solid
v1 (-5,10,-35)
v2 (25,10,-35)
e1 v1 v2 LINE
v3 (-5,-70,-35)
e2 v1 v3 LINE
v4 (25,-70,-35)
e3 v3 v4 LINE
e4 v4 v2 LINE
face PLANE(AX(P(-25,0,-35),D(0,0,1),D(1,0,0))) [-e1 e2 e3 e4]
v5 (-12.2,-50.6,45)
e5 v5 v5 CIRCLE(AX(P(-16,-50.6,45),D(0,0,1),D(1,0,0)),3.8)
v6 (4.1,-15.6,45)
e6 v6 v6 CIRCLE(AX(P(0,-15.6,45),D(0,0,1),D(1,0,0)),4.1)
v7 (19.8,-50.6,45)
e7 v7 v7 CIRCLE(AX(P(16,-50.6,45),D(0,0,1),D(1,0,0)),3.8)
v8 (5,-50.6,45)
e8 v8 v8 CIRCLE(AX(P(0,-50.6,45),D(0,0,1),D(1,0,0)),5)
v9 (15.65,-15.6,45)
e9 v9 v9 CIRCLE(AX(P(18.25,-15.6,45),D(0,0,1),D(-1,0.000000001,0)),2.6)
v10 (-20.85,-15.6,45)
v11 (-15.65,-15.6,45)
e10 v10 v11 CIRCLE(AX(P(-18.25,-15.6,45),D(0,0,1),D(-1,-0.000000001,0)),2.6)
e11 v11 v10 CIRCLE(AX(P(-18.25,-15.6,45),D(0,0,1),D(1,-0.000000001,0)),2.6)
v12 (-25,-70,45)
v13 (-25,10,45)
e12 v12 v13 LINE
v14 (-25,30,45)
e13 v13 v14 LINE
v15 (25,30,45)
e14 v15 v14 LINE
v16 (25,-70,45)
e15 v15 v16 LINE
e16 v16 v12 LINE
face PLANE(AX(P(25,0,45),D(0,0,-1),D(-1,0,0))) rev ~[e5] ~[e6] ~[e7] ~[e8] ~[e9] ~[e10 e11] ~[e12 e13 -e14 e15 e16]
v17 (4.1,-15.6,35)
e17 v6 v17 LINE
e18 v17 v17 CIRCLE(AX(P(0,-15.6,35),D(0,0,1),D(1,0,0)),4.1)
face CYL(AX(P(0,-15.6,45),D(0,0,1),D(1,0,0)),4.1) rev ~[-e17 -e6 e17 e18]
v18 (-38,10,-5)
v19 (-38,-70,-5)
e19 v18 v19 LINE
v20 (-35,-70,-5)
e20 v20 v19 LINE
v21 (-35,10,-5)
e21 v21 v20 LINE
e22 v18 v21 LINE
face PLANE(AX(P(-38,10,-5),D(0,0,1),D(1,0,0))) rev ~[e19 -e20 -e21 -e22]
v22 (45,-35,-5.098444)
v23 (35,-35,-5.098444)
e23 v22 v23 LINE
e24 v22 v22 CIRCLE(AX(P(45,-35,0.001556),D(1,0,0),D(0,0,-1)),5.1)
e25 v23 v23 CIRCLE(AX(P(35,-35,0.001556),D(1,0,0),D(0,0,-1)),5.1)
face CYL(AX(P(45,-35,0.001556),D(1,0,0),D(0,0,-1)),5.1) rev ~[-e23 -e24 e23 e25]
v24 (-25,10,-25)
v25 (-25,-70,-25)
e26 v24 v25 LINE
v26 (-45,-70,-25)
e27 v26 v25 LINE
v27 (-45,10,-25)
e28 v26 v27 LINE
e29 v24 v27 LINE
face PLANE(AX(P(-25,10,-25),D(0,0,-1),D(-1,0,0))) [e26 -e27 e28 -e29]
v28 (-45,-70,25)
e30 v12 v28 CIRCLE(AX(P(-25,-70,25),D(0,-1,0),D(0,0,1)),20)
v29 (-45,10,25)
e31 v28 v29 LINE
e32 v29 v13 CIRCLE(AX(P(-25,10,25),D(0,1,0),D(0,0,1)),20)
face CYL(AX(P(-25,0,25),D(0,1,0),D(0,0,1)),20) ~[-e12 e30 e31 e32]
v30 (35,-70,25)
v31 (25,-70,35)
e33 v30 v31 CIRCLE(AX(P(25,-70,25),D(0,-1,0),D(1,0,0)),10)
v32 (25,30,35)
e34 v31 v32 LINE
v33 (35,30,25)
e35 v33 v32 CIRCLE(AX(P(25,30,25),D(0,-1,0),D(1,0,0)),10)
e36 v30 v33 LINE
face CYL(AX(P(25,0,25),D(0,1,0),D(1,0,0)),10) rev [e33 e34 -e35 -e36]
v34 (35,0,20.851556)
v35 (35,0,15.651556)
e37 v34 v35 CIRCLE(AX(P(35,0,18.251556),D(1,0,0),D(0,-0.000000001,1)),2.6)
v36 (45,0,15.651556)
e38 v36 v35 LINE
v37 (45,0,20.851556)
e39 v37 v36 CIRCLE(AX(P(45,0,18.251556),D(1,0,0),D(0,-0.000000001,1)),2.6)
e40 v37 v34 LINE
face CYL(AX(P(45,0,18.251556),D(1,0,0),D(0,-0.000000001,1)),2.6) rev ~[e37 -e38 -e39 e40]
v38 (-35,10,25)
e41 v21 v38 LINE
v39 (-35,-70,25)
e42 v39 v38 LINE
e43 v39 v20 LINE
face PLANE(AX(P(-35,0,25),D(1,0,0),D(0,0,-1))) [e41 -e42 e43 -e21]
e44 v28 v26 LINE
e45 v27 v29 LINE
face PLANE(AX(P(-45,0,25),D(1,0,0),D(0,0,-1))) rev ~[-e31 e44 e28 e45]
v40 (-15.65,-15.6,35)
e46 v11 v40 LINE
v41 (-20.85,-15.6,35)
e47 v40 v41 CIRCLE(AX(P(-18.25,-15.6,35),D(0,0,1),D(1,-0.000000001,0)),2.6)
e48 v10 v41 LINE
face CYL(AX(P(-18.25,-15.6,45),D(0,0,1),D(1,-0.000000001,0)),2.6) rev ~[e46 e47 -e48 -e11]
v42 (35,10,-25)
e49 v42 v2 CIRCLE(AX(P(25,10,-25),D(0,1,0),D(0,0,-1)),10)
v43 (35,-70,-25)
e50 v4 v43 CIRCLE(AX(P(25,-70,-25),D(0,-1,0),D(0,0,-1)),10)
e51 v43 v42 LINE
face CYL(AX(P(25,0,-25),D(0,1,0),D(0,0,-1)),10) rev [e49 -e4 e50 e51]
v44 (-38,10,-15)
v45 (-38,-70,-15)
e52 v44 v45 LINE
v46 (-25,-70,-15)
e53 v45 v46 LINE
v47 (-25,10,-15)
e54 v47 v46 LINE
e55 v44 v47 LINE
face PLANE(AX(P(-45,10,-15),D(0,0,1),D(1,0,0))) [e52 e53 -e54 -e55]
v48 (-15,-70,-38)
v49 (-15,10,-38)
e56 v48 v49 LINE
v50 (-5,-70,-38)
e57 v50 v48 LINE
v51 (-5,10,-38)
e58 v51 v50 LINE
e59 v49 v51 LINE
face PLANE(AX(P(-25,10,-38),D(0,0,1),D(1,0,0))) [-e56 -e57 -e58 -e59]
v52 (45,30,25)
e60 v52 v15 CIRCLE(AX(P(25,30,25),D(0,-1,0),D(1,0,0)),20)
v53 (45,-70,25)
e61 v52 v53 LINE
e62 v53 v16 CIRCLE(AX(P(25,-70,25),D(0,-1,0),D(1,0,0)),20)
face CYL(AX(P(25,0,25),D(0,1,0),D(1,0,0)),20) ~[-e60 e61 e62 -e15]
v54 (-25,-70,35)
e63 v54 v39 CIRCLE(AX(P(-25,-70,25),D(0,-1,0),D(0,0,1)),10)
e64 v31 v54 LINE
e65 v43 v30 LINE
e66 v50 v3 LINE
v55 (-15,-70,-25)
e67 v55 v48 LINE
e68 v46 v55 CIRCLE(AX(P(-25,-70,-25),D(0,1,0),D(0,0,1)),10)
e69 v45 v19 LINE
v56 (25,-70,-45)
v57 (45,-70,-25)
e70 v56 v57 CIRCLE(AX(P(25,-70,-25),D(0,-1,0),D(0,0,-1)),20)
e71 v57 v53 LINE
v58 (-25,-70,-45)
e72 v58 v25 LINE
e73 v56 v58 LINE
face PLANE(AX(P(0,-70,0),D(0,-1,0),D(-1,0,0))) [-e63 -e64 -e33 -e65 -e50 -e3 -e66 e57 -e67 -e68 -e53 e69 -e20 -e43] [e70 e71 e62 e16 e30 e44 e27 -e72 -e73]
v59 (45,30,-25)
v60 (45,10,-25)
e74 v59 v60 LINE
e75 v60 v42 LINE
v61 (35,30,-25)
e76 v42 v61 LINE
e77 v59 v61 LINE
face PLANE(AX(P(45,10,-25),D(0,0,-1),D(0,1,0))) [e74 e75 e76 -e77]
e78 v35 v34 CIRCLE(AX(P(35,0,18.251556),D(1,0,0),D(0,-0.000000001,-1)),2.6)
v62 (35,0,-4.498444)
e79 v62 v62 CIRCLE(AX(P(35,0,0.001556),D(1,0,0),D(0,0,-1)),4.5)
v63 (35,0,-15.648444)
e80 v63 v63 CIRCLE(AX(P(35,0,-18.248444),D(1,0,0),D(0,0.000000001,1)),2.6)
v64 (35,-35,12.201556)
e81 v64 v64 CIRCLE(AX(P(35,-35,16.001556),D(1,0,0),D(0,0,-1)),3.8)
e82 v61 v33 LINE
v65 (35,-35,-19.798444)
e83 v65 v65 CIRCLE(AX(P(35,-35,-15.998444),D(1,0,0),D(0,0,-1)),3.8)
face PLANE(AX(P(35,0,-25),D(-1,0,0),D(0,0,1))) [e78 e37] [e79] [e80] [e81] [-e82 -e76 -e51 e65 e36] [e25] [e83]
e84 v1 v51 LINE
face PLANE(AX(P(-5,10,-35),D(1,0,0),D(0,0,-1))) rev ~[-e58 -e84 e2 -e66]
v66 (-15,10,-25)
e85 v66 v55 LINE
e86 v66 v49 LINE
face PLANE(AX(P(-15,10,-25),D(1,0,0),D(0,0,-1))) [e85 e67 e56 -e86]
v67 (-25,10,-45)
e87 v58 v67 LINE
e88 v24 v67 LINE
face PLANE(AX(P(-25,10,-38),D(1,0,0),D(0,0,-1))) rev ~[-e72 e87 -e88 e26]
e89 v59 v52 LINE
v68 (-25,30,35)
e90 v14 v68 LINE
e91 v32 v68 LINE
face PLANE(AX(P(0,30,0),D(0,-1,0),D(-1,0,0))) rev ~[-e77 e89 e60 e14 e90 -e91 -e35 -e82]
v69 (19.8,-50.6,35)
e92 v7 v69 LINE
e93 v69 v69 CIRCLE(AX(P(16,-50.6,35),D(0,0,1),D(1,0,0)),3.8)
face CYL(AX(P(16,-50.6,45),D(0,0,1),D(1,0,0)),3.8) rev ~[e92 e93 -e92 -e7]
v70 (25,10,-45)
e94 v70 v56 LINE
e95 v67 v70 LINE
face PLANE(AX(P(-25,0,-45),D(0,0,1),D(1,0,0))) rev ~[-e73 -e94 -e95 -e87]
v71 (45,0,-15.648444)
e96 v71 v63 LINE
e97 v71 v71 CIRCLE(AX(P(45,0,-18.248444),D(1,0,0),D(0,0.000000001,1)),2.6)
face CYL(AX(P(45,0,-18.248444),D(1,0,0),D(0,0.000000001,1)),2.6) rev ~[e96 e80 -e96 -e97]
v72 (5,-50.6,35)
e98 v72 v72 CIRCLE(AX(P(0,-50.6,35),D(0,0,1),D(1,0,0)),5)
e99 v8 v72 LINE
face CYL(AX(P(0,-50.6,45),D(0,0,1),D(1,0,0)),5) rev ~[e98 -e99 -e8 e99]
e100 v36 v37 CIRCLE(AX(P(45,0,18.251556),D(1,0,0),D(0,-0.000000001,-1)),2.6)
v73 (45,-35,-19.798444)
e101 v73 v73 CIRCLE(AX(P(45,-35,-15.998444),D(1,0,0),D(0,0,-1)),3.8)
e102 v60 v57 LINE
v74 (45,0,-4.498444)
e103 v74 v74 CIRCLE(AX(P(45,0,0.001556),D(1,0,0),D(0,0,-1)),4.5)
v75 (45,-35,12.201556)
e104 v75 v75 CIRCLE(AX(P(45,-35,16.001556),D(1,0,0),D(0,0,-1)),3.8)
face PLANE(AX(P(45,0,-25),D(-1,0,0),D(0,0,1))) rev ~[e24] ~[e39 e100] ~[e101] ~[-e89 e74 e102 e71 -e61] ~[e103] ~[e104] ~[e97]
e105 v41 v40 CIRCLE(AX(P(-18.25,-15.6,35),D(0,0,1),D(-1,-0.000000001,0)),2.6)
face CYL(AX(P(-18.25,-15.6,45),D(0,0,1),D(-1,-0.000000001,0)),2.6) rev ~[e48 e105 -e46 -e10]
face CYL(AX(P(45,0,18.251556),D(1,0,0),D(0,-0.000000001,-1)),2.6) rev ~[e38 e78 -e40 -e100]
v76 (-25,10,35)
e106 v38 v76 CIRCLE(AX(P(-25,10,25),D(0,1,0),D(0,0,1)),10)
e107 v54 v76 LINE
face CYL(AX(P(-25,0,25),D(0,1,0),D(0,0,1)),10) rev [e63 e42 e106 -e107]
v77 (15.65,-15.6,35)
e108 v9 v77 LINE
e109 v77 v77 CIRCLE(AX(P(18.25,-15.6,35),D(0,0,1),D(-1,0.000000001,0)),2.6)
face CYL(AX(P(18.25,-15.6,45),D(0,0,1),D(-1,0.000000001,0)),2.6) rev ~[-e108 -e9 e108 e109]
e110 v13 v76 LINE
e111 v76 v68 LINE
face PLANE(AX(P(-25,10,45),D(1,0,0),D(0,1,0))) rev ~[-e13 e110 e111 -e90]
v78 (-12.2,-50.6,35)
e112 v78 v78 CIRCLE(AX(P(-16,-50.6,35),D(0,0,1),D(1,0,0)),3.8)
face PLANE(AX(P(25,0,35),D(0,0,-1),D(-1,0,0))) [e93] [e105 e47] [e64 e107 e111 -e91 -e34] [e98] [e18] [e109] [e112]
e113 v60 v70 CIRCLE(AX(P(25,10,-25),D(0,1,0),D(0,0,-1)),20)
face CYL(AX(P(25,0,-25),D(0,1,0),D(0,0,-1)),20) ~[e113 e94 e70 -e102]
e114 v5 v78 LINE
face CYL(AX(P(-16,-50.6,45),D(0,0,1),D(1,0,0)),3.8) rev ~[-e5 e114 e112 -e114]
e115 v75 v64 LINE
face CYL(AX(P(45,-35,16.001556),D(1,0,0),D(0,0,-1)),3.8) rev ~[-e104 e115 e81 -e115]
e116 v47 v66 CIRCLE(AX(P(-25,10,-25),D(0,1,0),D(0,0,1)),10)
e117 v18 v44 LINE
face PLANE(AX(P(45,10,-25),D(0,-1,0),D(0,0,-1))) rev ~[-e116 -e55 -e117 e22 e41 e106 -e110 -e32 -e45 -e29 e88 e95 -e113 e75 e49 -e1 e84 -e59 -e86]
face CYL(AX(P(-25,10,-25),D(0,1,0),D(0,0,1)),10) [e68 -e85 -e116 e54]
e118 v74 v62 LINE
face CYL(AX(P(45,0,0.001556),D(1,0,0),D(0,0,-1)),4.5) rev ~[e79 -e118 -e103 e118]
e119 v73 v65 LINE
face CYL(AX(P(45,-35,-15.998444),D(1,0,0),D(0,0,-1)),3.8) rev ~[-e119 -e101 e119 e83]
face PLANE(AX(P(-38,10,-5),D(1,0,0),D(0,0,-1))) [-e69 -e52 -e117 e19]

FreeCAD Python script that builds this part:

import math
import FreeCAD as App
import Part
import Sketcher
from FreeCAD import Vector
Q = App.Units.Quantity

doc = App.newDocument("Part")
body = doc.addObject("PartDesign::Body", "Body")

sketch1 = body.newObject("Sketcher::SketchObject", "Sketch")
sketch1.AttachmentSupport = (doc.getObject("XZ_Plane"), [""])
sketch1.MapMode = "FlatFace"
sketch1.addGeometry(Part.LineSegment(Vector(25, -45, 0), Vector(-25, -45, 0)), False)
sketch1.addGeometry(Part.ArcOfCircle(Part.Circle(Vector(-25, -25, 0), Vector(0, 0, 1), 20), math.radians(180), math.radians(270)), False)
sketch1.addGeometry(Part.LineSegment(Vector(-45, -25, 0), Vector(-45, 25, 0)), False)
sketch1.addGeometry(Part.ArcOfCircle(Part.Circle(Vector(-25, 25, 0), Vector(0, 0, 1), 20), math.radians(90), math.radians(180)), False)
sketch1.addGeometry(Part.LineSegment(Vector(-25, 45, 0), Vector(25, 45, 0)), False)
sketch1.addGeometry(Part.ArcOfCircle(Part.Circle(Vector(25, 25, 0), Vector(0, 0, 1), 20), math.radians(0), math.radians(90)), False)
sketch1.addGeometry(Part.LineSegment(Vector(45, 25, 0), Vector(45, -25, 0)), False)
sketch1.addGeometry(Part.ArcOfCircle(Part.Circle(Vector(25, -25, 0), Vector(0, 0, 1), 20), math.radians(-90), math.radians(0)), False)
sketch1.addGeometry(Part.LineSegment(Vector(-25, -35, 0), Vector(25, -35, 0)), False)
sketch1.addGeometry(Part.ArcOfCircle(Part.Circle(Vector(25, -25, 0), Vector(0, 0, 1), 10), math.radians(-90), math.radians(0)), False)
sketch1.addGeometry(Part.LineSegment(Vector(35, -25, 0), Vector(35, 25, 0)), False)
sketch1.addGeometry(Part.ArcOfCircle(Part.Circle(Vector(25, 25, 0), Vector(0, 0, 1), 10), math.radians(0), math.radians(90)), False)
sketch1.addGeometry(Part.LineSegment(Vector(25, 35, 0), Vector(-25, 35, 0)), False)
sketch1.addGeometry(Part.ArcOfCircle(Part.Circle(Vector(-25, 25, 0), Vector(0, 0, 1), 10), math.radians(90), math.radians(180)), False)
sketch1.addGeometry(Part.LineSegment(Vector(-35, 25, 0), Vector(-35, -25, 0)), False)
sketch1.addGeometry(Part.ArcOfCircle(Part.Circle(Vector(-25, -25, 0), Vector(0, 0, 1), 10), math.radians(180), math.radians(270)), False)
sketch1.addConstraint(Sketcher.Constraint("Tangent", 0, 2, 1, 2))
sketch1.addConstraint(Sketcher.Constraint("Tangent", 1, 1, 2, 1))
sketch1.addConstraint(Sketcher.Constraint("Tangent", 2, 2, 3, 2))
sketch1.addConstraint(Sketcher.Constraint("Tangent", 3, 1, 4, 1))
sketch1.addConstraint(Sketcher.Constraint("Tangent", 4, 2, 5, 2))
sketch1.addConstraint(Sketcher.Constraint("Tangent", 5, 1, 6, 1))
sketch1.addConstraint(Sketcher.Constraint("Tangent", 6, 2, 7, 2))
sketch1.addConstraint(Sketcher.Constraint("Tangent", 7, 1, 0, 1))
sketch1.addConstraint(Sketcher.Constraint("Tangent", 8, 2, 9, 1))
sketch1.addConstraint(Sketcher.Constraint("Tangent", 9, 2, 10, 1))
sketch1.addConstraint(Sketcher.Constraint("Tangent", 10, 2, 11, 1))
sketch1.addConstraint(Sketcher.Constraint("Tangent", 11, 2, 12, 1))
sketch1.addConstraint(Sketcher.Constraint("Tangent", 12, 2, 13, 1))
sketch1.addConstraint(Sketcher.Constraint("Tangent", 13, 2, 14, 1))
sketch1.addConstraint(Sketcher.Constraint("Tangent", 14, 2, 15, 1))
sketch1.addConstraint(Sketcher.Constraint("Tangent", 15, 2, 8, 1))
sketch1.addConstraint(Sketcher.Constraint("Horizontal", 0))
sketch1.addConstraint(Sketcher.Constraint("Vertical", 2))
sketch1.addConstraint(Sketcher.Constraint("Horizontal", 4))
sketch1.addConstraint(Sketcher.Constraint("Vertical", 6))
sketch1.addConstraint(Sketcher.Constraint("Horizontal", 8))
sketch1.addConstraint(Sketcher.Constraint("Vertical", 10))
sketch1.addConstraint(Sketcher.Constraint("Horizontal", 12))
sketch1.addConstraint(Sketcher.Constraint("Vertical", 14))
sketch1.addConstraint(Sketcher.Constraint("Coincident", 9, 3, 7, 3))
sketch1.addConstraint(Sketcher.Constraint("Coincident", 11, 3, 5, 3))
sketch1.addConstraint(Sketcher.Constraint("Coincident", 13, 3, 3, 3))
sketch1.addConstraint(Sketcher.Constraint("Equal", 1, 3))
sketch1.addConstraint(Sketcher.Constraint("Equal", 3, 5))
sketch1.addConstraint(Sketcher.Constraint("Equal", 5, 7))
sketch1.addConstraint(Sketcher.Constraint("Equal", 13, 15))
sketch1.addConstraint(Sketcher.Constraint("Symmetric", 1, 3, 5, 3, -1, 1))
sketch1.addConstraint(Sketcher.Constraint("Equal", 12, 2))
sketch1.addConstraint(Sketcher.Constraint("Radius", 1, Q("20 mm")))
sketch1.addConstraint(Sketcher.Constraint("Radius", 9, Q("10 mm")))
sketch1.addConstraint(Sketcher.Constraint("DistanceX", 0, 2, 0, 1, Q("50 mm")))
pad1 = body.newObject("PartDesign::Pad", "Pad")
pad1.Profile = sketch1
pad1.Type = "TwoLengths"
pad1.Length = 30
pad1.Length2 = 70
pad1.Reversed = True

sketch2 = body.newObject("Sketcher::SketchObject", "Sketch001")
sketch2.AttachmentSupport = (doc.getObject("YZ_Plane"), [""])
sketch2.MapMode = "FlatFace"
sketch2.AttachmentOffset = App.Placement(Vector(0, 0, 45), App.Rotation())
sketch2.addGeometry(Part.Circle(Vector(0, 0, 0), Vector(0, 0, 1), 4.5), False)
sketch2.addConstraint(Sketcher.Constraint("PointOnObject", 0, 3, -2))
sketch2.addConstraint(Sketcher.Constraint("Diameter", 0, Q("9 mm")))
sketch2.addConstraint(Sketcher.Constraint("DistanceY", -1, 1, 0, 3, Q("0.001556 mm")))
pocket1 = body.newObject("PartDesign::Pocket", "Pocket")
pocket1.Profile = sketch2
pocket1.Type = "UpToFirst"

sketch3 = body.newObject("Sketcher::SketchObject", "Sketch002")
sketch3.AttachmentSupport = (doc.getObject("YZ_Plane"), [""])
sketch3.MapMode = "FlatFace"
sketch3.AttachmentOffset = App.Placement(Vector(0, 0, 45), App.Rotation())
sketch3.addGeometry(Part.Circle(Vector(-35, 0, 0), Vector(0, 0, 1), 5), False)
sketch3.addConstraint(Sketcher.Constraint("Diameter", 0, Q("10.2 mm")))
sketch3.addConstraint(Sketcher.Constraint("DistanceX", 0, 3, -1, 1, Q("35 mm")))
sketch3.addConstraint(Sketcher.Constraint("DistanceY", -1, 1, 0, 3, Q("0.001556 mm")))
pocket2 = body.newObject("PartDesign::Pocket", "Pocket001")
pocket2.Profile = sketch3
pocket2.Type = "UpToFirst"

sketch4 = body.newObject("Sketcher::SketchObject", "Sketch003")
sketch4.AttachmentSupport = (doc.getObject("YZ_Plane"), [""])
sketch4.MapMode = "FlatFace"
sketch4.AttachmentOffset = App.Placement(Vector(0, 0, 45), App.Rotation())
sketch4.addGeometry(Part.Circle(Vector(-35, -16, 0), Vector(0, 0, 1), 3.8), False)
sketch4.addConstraint(Sketcher.Constraint("Diameter", 0, Q("7.6 mm")))
sketch4.addConstraint(Sketcher.Constraint("DistanceX", 0, 3, -1, 1, Q("35 mm")))
sketch4.addConstraint(Sketcher.Constraint("DistanceY", 0, 3, -1, 1, Q("15.998444 mm")))
pocket3 = body.newObject("PartDesign::Pocket", "Pocket002")
pocket3.Profile = sketch4
pocket3.Type = "UpToFirst"

sketch5 = body.newObject("Sketcher::SketchObject", "Sketch004")
sketch5.AttachmentSupport = (doc.getObject("YZ_Plane"), [""])
sketch5.MapMode = "FlatFace"
sketch5.AttachmentOffset = App.Placement(Vector(0, 0, 45), App.Rotation())
sketch5.addGeometry(Part.Circle(Vector(-35, 16, 0), Vector(0, 0, 1), 3.8), False)
sketch5.addConstraint(Sketcher.Constraint("Diameter", 0, Q("7.6 mm")))
sketch5.addConstraint(Sketcher.Constraint("DistanceX", 0, 3, -1, 1, Q("35 mm")))
sketch5.addConstraint(Sketcher.Constraint("DistanceY", -1, 1, 0, 3, Q("16.001556 mm")))
pocket4 = body.newObject("PartDesign::Pocket", "Pocket003")
pocket4.Profile = sketch5
pocket4.Type = "UpToFirst"

sketch6 = body.newObject("Sketcher::SketchObject", "Sketch005")
sketch6.AttachmentSupport = (doc.getObject("YZ_Plane"), [""])
sketch6.MapMode = "FlatFace"
sketch6.AttachmentOffset = App.Placement(Vector(0, 0, 45), App.Rotation())
sketch6.addGeometry(Part.Circle(Vector(0, -18.2, 0), Vector(0, 0, 1), 2.6), False)
sketch6.addConstraint(Sketcher.Constraint("PointOnObject", 0, 3, -2))
sketch6.addConstraint(Sketcher.Constraint("Diameter", 0, Q("5.2 mm")))
sketch6.addConstraint(Sketcher.Constraint("DistanceY", 0, 3, -1, 1, Q("18.248444 mm")))
pocket5 = body.newObject("PartDesign::Pocket", "Pocket004")
pocket5.Profile = sketch6
pocket5.Type = "UpToFirst"

sketch7 = body.newObject("Sketcher::SketchObject", "Sketch006")
sketch7.AttachmentSupport = (doc.getObject("YZ_Plane"), [""])
sketch7.MapMode = "FlatFace"
sketch7.AttachmentOffset = App.Placement(Vector(0, 0, 45), App.Rotation())
sketch7.addGeometry(Part.ArcOfCircle(Part.Circle(Vector(0, 18.3, 0), Vector(0, 0, 1), 2.6), math.radians(-90), math.radians(90)), False)
sketch7.addGeometry(Part.ArcOfCircle(Part.Circle(Vector(0, 18.3, 0), Vector(0, 0, 1), 2.6), math.radians(90), math.radians(270)), False)
sketch7.addConstraint(Sketcher.Constraint("Tangent", 0, 1, 1, 2))
sketch7.addConstraint(Sketcher.Constraint("Coincident", 1, 1, 0, 2))
sketch7.addConstraint(Sketcher.Constraint("PointOnObject", 0, 3, -2))
sketch7.addConstraint(Sketcher.Constraint("PointOnObject", 0, 1, -2))
sketch7.addConstraint(Sketcher.Constraint("PointOnObject", 1, 1, -2))
sketch7.addConstraint(Sketcher.Constraint("Radius", 0, Q("2.6 mm")))
sketch7.addConstraint(Sketcher.Constraint("DistanceY", -1, 1, 0, 3, Q("18.251556 mm")))
pocket6 = body.newObject("PartDesign::Pocket", "Pocket005")
pocket6.Profile = sketch7
pocket6.Type = "UpToFirst"

sketch8 = body.newObject("Sketcher::SketchObject", "Sketch007")
sketch8.AttachmentSupport = (doc.getObject("YZ_Plane"), [""])
sketch8.MapMode = "FlatFace"
sketch8.AttachmentOffset = App.Placement(Vector(0, 0, 45), App.Rotation())
sketch8.addGeometry(Part.LineSegment(Vector(30, -25, 0), Vector(10, -25, 0)), False)
sketch8.addGeometry(Part.LineSegment(Vector(10, -25, 0), Vector(10, -45, 0)), False)
sketch8.addGeometry(Part.LineSegment(Vector(10, -45, 0), Vector(30, -45, 0)), False)
sketch8.addGeometry(Part.LineSegment(Vector(30, -45, 0), Vector(30, -25, 0)), False)
sketch8.addConstraint(Sketcher.Constraint("Coincident", 0, 2, 1, 1))
sketch8.addConstraint(Sketcher.Constraint("Coincident", 1, 2, 2, 1))
sketch8.addConstraint(Sketcher.Constraint("Coincident", 2, 2, 3, 1))
sketch8.addConstraint(Sketcher.Constraint("Coincident", 3, 2, 0, 1))
sketch8.addConstraint(Sketcher.Constraint("Horizontal", 0))
sketch8.addConstraint(Sketcher.Constraint("Vertical", 1))
sketch8.addConstraint(Sketcher.Constraint("Horizontal", 2))
sketch8.addConstraint(Sketcher.Constraint("Vertical", 3))
sketch8.addConstraint(Sketcher.Constraint("Equal", 2, 1))
sketch8.addConstraint(Sketcher.Constraint("DistanceX", 0, 2, 0, 1, Q("20 mm")))
sketch8.addConstraint(Sketcher.Constraint("DistanceX", -1, 1, 0, 2, Q("10 mm")))
sketch8.addConstraint(Sketcher.Constraint("DistanceY", 0, 2, -1, 1, Q("25 mm")))
pocket7 = body.newObject("PartDesign::Pocket", "Pocket006")
pocket7.Profile = sketch8
pocket7.Type = "ThroughAll"

sketch9 = body.newObject("Sketcher::SketchObject", "Sketch008")
sketch9.AttachmentSupport = (doc.getObject("XY_Plane"), [""])
sketch9.MapMode = "FlatFace"
sketch9.AttachmentOffset = App.Placement(Vector(0, 0, 45), App.Rotation())
sketch9.addGeometry(Part.LineSegment(Vector(-45, 30, 0), Vector(-45, 10, 0)), False)
sketch9.addGeometry(Part.LineSegment(Vector(-45, 10, 0), Vector(-25, 10, 0)), False)
sketch9.addGeometry(Part.LineSegment(Vector(-25, 10, 0), Vector(-25, 30, 0)), False)
sketch9.addGeometry(Part.LineSegment(Vector(-25, 30, 0), Vector(-45, 30, 0)), False)
sketch9.addConstraint(Sketcher.Constraint("Coincident", 0, 2, 1, 1))
sketch9.addConstraint(Sketcher.Constraint("Coincident", 1, 2, 2, 1))
sketch9.addConstraint(Sketcher.Constraint("Coincident", 2, 2, 3, 1))
sketch9.addConstraint(Sketcher.Constraint("Coincident", 3, 2, 0, 1))
sketch9.addConstraint(Sketcher.Constraint("Vertical", 0))
sketch9.addConstraint(Sketcher.Constraint("Horizontal", 1))
sketch9.addConstraint(Sketcher.Constraint("Vertical", 2))
sketch9.addConstraint(Sketcher.Constraint("Horizontal", 3))
sketch9.addConstraint(Sketcher.Constraint("Equal", 3, 0))
sketch9.addConstraint(Sketcher.Constraint("DistanceX", 1, 1, 1, 2, Q("20 mm")))
sketch9.addConstraint(Sketcher.Constraint("DistanceX", 0, 2, -1, 1, Q("45 mm")))
sketch9.addConstraint(Sketcher.Constraint("DistanceY", -1, 1, 0, 2, Q("10 mm")))
pocket8 = body.newObject("PartDesign::Pocket", "Pocket007")
pocket8.Profile = sketch9
pocket8.Length = 70

sketch10 = body.newObject("Sketcher::SketchObject", "Sketch009")
sketch10.AttachmentSupport = (doc.getObject("XY_Plane"), [""])
sketch10.MapMode = "FlatFace"
sketch10.AttachmentOffset = App.Placement(Vector(0, 0, 45), App.Rotation())
sketch10.addGeometry(Part.Circle(Vector(640, -50.6, 0), Vector(0, 0, 1), 5), False)
sketch10.addGeometry(Part.Circle(Vector(640, -15.6, 0), Vector(0, 0, 1), 5), False)
sketch10.addGeometry(Part.Circle(Vector(0, -15.6, 0), Vector(0, 0, 1), 4.1), False)
sketch10.addGeometry(Part.Circle(Vector(0, -50.6, 0), Vector(0, 0, 1), 5), False)
sketch10.addGeometry(Part.Circle(Vector(-16, -50.6, 0), Vector(0, 0, 1), 3.8), False)
sketch10.addGeometry(Part.Circle(Vector(16, -50.6, 0), Vector(0, 0, 1), 3.8), False)
sketch10.addGeometry(Part.ArcOfCircle(Part.Circle(Vector(-18.2, -15.6, 0), Vector(0, 0, 1), 2.6), math.radians(0), math.radians(180)), False)
sketch10.addGeometry(Part.ArcOfCircle(Part.Circle(Vector(-18.2, -15.6, 0), Vector(0, 0, 1), 2.6), math.radians(-180), math.radians(0)), False)
sketch10.addGeometry(Part.Circle(Vector(18.2, -15.6, 0), Vector(0, 0, 1), 2.6), False)
sketch10.addConstraint(Sketcher.Constraint("Tangent", 6, 1, 7, 2))
sketch10.addConstraint(Sketcher.Constraint("Coincident", 7, 1, 6, 2))
sketch10.addConstraint(Sketcher.Constraint("Equal", 0, 1))
sketch10.addConstraint(Sketcher.Constraint("Equal", 1, 3))
sketch10.addConstraint(Sketcher.Constraint("Equal", 4, 5))
sketch10.addConstraint(Sketcher.Constraint("Equal", 7, 8))
sketch10.addConstraint(Sketcher.Constraint("Symmetric", 4, 3, 5, 3, -2))
sketch10.addConstraint(Sketcher.Constraint("Symmetric", 6, 3, 8, 3, -2))
sketch10.addConstraint(Sketcher.Constraint("PointOnObject", 2, 3, -2))
sketch10.addConstraint(Sketcher.Constraint("PointOnObject", 3, 3, -2))
sketch10.addConstraint(Sketcher.Constraint("Horizontal", 1, 3, 2, 3))
sketch10.addConstraint(Sketcher.Constraint("Horizontal", 0, 3, 3, 3))
sketch10.addConstraint(Sketcher.Constraint("Horizontal", 3, 3, 4, 3))
sketch10.addConstraint(Sketcher.Constraint("Horizontal", 2, 3, 6, 3))
sketch10.addConstraint(Sketcher.Constraint("Horizontal", 8, 3, 6, 1))
sketch10.addConstraint(Sketcher.Constraint("Horizontal", 6, 1, 7, 1))
sketch10.addConstraint(Sketcher.Constraint("Vertical", 0, 3, 1, 3))
sketch10.addConstraint(Sketcher.Constraint("Diameter", 0, Q("10 mm")))
sketch10.addConstraint(Sketcher.Constraint("Diameter", 2, Q("8.2 mm")))
sketch10.addConstraint(Sketcher.Constraint("Diameter", 4, Q("7.6 mm")))
sketch10.addConstraint(Sketcher.Constraint("Diameter", 8, Q("5.2 mm")))
sketch10.addConstraint(Sketcher.Constraint("DistanceX", -1, 1, 0, 3, Q("640 mm")))
sketch10.addConstraint(Sketcher.Constraint("DistanceX", 4, 3, -1, 1, Q("16 mm")))
sketch10.addConstraint(Sketcher.Constraint("DistanceY", 0, 3, 1, 3, Q("35 mm")))
sketch10.addConstraint(Sketcher.Constraint("DistanceY", 0, 3, -1, 1, Q("50.6 mm")))
sketch10.addConstraint(Sketcher.Constraint("DistanceX", 6, 3, 8, 3, Q("36.5 mm")))
pocket9 = body.newObject("PartDesign::Pocket", "Pocket008")
pocket9.Profile = sketch10
pocket9.Length = 10

sketch11 = body.newObject("Sketcher::SketchObject", "Sketch010")
sketch11.AttachmentSupport = (doc.getObject("XZ_Plane"), [""])
sketch11.MapMode = "FlatFace"
sketch11.AttachmentOffset = App.Placement(Vector(0, 0, -10), App.Rotation())
sketch11.addGeometry(Part.LineSegment(Vector(-45, -45, 0), Vector(-45, -25, 0)), False)
sketch11.addGeometry(Part.LineSegment(Vector(-45, -25, 0), Vector(-38, -25, 0)), False)
sketch11.addGeometry(Part.LineSegment(Vector(-38, -25, 0), Vector(-38, -5, 0)), False)
sketch11.addGeometry(Part.LineSegment(Vector(-38, -5, 0), Vector(-35, -5, 0)), False)
sketch11.addGeometry(Part.LineSegment(Vector(-35, -5, 0), Vector(-35, -25, 0)), False)
sketch11.addGeometry(Part.LineSegment(Vector(-35, -25, 0), Vector(-25, -25, 0)), False)
sketch11.addGeometry(Part.LineSegment(Vector(-25, -25, 0), Vector(-25, -35, 0)), False)
sketch11.addGeometry(Part.LineSegment(Vector(-25, -35, 0), Vector(-5, -35, 0)), False)
sketch11.addGeometry(Part.LineSegment(Vector(-5, -35, 0), Vector(-5, -38, 0)), False)
sketch11.addGeometry(Part.LineSegment(Vector(-5, -38, 0), Vector(-25, -38, 0)), False)
sketch11.addGeometry(Part.LineSegment(Vector(-25, -38, 0), Vector(-25, -45, 0)), False)
sketch11.addGeometry(Part.LineSegment(Vector(-25, -45, 0), Vector(-45, -45, 0)), False)
sketch11.addConstraint(Sketcher.Constraint("Coincident", 0, 2, 1, 1))
sketch11.addConstraint(Sketcher.Constraint("Coincident", 1, 2, 2, 1))
sketch11.addConstraint(Sketcher.Constraint("Coincident", 2, 2, 3, 1))
sketch11.addConstraint(Sketcher.Constraint("Coincident", 3, 2, 4, 1))
sketch11.addConstraint(Sketcher.Constraint("Coincident", 4, 2, 5, 1))
sketch11.addConstraint(Sketcher.Constraint("Coincident", 5, 2, 6, 1))
sketch11.addConstraint(Sketcher.Constraint("Coincident", 6, 2, 7, 1))
sketch11.addConstraint(Sketcher.Constraint("Coincident", 7, 2, 8, 1))
sketch11.addConstraint(Sketcher.Constraint("Coincident", 8, 2, 9, 1))
sketch11.addConstraint(Sketcher.Constraint("Coincident", 9, 2, 10, 1))
sketch11.addConstraint(Sketcher.Constraint("Coincident", 10, 2, 11, 1))
sketch11.addConstraint(Sketcher.Constraint("Coincident", 11, 2, 0, 1))
sketch11.addConstraint(Sketcher.Constraint("Vertical", 0))
sketch11.addConstraint(Sketcher.Constraint("Horizontal", 1))
sketch11.addConstraint(Sketcher.Constraint("Vertical", 2))
sketch11.addConstraint(Sketcher.Constraint("Horizontal", 3))
sketch11.addConstraint(Sketcher.Constraint("Vertical", 4))
sketch11.addConstraint(Sketcher.Constraint("Horizontal", 5))
sketch11.addConstraint(Sketcher.Constraint("Vertical", 6))
sketch11.addConstraint(Sketcher.Constraint("Horizontal", 7))
sketch11.addConstraint(Sketcher.Constraint("Vertical", 8))
sketch11.addConstraint(Sketcher.Constraint("Horizontal", 9))
sketch11.addConstraint(Sketcher.Constraint("Vertical", 10))
sketch11.addConstraint(Sketcher.Constraint("Horizontal", 11))
sketch11.addConstraint(Sketcher.Constraint("Horizontal", 1, 2, 4, 2))
sketch11.addConstraint(Sketcher.Constraint("Vertical", 6, 2, 9, 2))
sketch11.addConstraint(Sketcher.Constraint("Equal", 9, 11))
sketch11.addConstraint(Sketcher.Constraint("Equal", 11, 0))
sketch11.addConstraint(Sketcher.Constraint("Equal", 0, 2))
sketch11.addConstraint(Sketcher.Constraint("Equal", 5, 6))
sketch11.addConstraint(Sketcher.Constraint("Equal", 3, 8))
sketch11.addConstraint(Sketcher.Constraint("DistanceX", 1, 1, 1, 2, Q("7 mm")))
sketch11.addConstraint(Sketcher.Constraint("DistanceX", 3, 1, 3, 2, Q("3 mm")))
sketch11.addConstraint(Sketcher.Constraint("DistanceX", 5, 1, 5, 2, Q("10 mm")))
sketch11.addConstraint(Sketcher.Constraint("DistanceX", 0, 2, -1, 1, Q("45 mm")))
sketch11.addConstraint(Sketcher.Constraint("DistanceY", 0, 2, -1, 1, Q("25 mm")))
pocket10 = body.newObject("PartDesign::Pocket", "Pocket009")
pocket10.Profile = sketch11
pocket10.Type = "ThroughAll"
pocket10.Reversed = True

sketch12 = body.newObject("Sketcher::SketchObject", "Sketch011")
sketch12.AttachmentSupport = (doc.getObject("XZ_Plane"), [""])
sketch12.MapMode = "FlatFace"
sketch12.AttachmentOffset = App.Placement(Vector(0, 0, -10), App.Rotation())
sketch12.addGeometry(Part.LineSegment(Vector(-25, -45, 0), Vector(-25, -25, 0)), False)
sketch12.addGeometry(Part.LineSegment(Vector(-25, -25, 0), Vector(-45, -25, 0)), False)
sketch12.addGeometry(Part.LineSegment(Vector(-45, -25, 0), Vector(-45, -15, 0)), False)
sketch12.addGeometry(Part.LineSegment(Vector(-45, -15, 0), Vector(-25, -15, 0)), False)
sketch12.addGeometry(Part.ArcOfCircle(Part.Circle(Vector(-25, -25, 0), Vector(0, 0, 1), 10), math.radians(0), math.radians(90)), False)
sketch12.addGeometry(Part.LineSegment(Vector(-15, -25, 0), Vector(-15, -45, 0)), False)
sketch12.addGeometry(Part.LineSegment(Vector(-15, -45, 0), Vector(-25, -45, 0)), False)
sketch12.addConstraint(Sketcher.Constraint("Coincident", 0, 2, 1, 1))
sketch12.addConstraint(Sketcher.Constraint("Coincident", 1, 2, 2, 1))
sketch12.addConstraint(Sketcher.Constraint("Coincident", 2, 2, 3, 1))
sketch12.addConstraint(Sketcher.Constraint("Tangent", 3, 2, 4, 2))
sketch12.addConstraint(Sketcher.Constraint("Tangent", 4, 1, 5, 1))
sketch12.addConstraint(Sketcher.Constraint("Coincident", 5, 2, 6, 1))
sketch12.addConstraint(Sketcher.Constraint("Coincident", 6, 2, 0, 1))
sketch12.addConstraint(Sketcher.Constraint("Vertical", 0))
sketch12.addConstraint(Sketcher.Constraint("Horizontal", 1))
sketch12.addConstraint(Sketcher.Constraint("Vertical", 2))
sketch12.addConstraint(Sketcher.Constraint("Horizontal", 3))
sketch12.addConstraint(Sketcher.Constraint("Vertical", 5))
sketch12.addConstraint(Sketcher.Constraint("Horizontal", 6))
sketch12.addConstraint(Sketcher.Constraint("Coincident", 0, 2, 4, 3))
sketch12.addConstraint(Sketcher.Constraint("Equal", 3, 0))
sketch12.addConstraint(Sketcher.Constraint("Radius", 4, Q("10 mm")))
sketch12.addConstraint(Sketcher.Constraint("DistanceX", 1, 2, 1, 1, Q("20 mm")))
sketch12.addConstraint(Sketcher.Constraint("DistanceX", 4, 3, -1, 1, Q("25 mm")))
sketch12.addConstraint(Sketcher.Constraint("DistanceY", 4, 3, -1, 1, Q("25 mm")))
pad2 = body.newObject("PartDesign::Pad", "Pad001")
pad2.Profile = sketch12
pad2.Length = 80

doc.recompute()
